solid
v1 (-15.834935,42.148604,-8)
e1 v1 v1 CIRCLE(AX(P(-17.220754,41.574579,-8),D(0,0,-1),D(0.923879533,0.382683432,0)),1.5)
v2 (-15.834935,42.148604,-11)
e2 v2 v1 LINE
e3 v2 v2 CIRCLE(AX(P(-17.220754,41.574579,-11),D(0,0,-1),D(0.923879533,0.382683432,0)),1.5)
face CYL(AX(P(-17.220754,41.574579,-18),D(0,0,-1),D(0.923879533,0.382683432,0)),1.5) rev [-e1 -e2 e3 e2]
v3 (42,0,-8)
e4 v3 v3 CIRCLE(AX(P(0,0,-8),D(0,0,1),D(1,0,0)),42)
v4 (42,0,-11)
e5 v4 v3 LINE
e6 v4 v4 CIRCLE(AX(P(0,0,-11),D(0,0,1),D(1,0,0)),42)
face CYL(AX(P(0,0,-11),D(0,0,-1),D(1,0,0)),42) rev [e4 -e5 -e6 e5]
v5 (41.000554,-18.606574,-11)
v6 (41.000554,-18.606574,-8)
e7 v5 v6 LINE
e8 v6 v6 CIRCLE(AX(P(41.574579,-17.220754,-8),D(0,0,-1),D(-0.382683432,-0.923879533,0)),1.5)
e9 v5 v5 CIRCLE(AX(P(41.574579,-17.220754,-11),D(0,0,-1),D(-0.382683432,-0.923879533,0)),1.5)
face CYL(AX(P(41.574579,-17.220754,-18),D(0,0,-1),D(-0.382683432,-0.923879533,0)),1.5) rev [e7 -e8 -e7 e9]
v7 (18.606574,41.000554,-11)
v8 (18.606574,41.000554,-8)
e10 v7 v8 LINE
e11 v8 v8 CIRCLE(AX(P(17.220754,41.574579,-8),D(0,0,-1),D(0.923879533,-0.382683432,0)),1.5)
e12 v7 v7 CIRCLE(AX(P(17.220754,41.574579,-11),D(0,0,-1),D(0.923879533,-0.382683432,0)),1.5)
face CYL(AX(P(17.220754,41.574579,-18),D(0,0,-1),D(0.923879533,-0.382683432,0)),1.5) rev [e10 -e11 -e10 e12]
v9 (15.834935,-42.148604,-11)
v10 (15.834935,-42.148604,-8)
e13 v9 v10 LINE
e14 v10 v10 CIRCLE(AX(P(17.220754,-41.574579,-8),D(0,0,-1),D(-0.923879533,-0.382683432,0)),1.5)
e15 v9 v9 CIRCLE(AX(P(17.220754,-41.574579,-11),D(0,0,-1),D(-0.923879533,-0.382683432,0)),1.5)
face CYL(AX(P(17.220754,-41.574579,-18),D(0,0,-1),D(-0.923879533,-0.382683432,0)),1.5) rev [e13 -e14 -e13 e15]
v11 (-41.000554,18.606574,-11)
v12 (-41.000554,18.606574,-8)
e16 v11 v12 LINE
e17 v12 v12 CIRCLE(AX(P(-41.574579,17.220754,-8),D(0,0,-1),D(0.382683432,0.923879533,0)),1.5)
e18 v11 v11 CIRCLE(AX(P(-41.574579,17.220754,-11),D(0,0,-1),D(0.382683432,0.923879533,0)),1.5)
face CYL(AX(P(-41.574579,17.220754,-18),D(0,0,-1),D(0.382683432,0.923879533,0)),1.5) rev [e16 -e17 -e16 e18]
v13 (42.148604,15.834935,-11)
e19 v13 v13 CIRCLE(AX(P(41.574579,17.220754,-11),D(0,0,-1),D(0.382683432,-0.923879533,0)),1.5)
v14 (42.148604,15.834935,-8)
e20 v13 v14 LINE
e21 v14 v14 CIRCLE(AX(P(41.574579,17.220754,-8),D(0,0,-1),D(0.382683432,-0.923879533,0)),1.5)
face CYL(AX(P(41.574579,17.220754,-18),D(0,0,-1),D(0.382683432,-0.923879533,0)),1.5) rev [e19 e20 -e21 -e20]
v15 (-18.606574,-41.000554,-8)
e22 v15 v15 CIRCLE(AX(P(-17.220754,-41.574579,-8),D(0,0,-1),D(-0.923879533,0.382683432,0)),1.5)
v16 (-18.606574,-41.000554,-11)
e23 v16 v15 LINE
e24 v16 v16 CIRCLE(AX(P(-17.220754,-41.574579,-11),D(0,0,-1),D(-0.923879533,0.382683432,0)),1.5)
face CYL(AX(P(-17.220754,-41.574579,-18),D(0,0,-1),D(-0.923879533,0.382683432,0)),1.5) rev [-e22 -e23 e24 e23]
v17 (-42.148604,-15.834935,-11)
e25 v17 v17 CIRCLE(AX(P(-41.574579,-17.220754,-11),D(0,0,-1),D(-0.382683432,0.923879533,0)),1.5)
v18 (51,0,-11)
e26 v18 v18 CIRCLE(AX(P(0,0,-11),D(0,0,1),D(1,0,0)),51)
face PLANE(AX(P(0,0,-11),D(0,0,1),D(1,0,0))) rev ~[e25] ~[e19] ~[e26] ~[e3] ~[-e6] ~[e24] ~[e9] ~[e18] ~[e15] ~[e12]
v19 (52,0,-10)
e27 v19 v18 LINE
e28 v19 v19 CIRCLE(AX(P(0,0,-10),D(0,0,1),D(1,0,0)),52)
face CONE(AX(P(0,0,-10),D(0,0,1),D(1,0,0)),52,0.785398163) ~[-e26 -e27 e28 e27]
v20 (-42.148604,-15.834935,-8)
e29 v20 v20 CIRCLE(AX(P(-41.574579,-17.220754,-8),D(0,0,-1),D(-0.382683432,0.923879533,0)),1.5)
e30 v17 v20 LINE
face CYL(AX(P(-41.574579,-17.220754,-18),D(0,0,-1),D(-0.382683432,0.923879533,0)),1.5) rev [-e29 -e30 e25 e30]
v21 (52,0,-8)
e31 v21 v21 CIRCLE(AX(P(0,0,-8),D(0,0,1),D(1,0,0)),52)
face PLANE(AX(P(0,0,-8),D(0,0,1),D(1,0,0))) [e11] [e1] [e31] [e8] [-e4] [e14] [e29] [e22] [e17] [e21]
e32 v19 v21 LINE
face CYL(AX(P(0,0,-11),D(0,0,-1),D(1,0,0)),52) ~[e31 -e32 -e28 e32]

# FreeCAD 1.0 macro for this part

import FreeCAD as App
import Part
import Sketcher


def edges_at(feature, points):
    """Names of the edges that pass closest to the given points."""
    edges = feature.Shape.Edges
    near = lambda p: min(range(len(edges)), key=lambda i: edges[i].distToShape(Part.Vertex(*p))[0])
    return sorted({f"Edge{near(p) + 1}" for p in points})

doc = App.newDocument("Part")
body = doc.addObject("PartDesign::Body", "Body")

# Sketch on XY plane
sketch1 = body.newObject("Sketcher::SketchObject", "Sketch")
sketch1.AttachmentSupport = (doc.getObject("XY_Plane"), [""])
sketch1.MapMode = "FlatFace"
sketch1.addGeometry(Part.Circle(App.Vector(0, 0, 0), App.Vector(0, 0, 1), 1.5), False)
sketch1.addConstraint([
    Sketcher.Constraint("Coincident", 0, 3, -1, 1),
    Sketcher.Constraint("Diameter", 0, 3.0),
])
pad1 = body.newObject("PartDesign::Pad", "Pad")
pad1.Profile = sketch1
pad1.Length = 20
body2 = doc.addObject("PartDesign::Body", "Body001")
doc.recompute()

body.Placement = App.Placement(App.Vector(-31.819805, 31.819805, -18), App.Rotation(App.Vector(0, 0, 1), 45))
boolean = body2.newObject("PartDesign::Boolean", "Boolean")
boolean.Type = "Fuse"
boolean.addObjects([body])
body3 = doc.addObject("PartDesign::Body", "Body002")

# Sketch on XY plane
sketch2 = body3.newObject("Sketcher::SketchObject", "Sketch001")
sketch2.AttachmentSupport = (doc.getObject("XY_Plane002"), [""])
sketch2.MapMode = "FlatFace"
sketch2.AttachmentOffset = App.Placement(App.Vector(0, 0, -18), App.Rotation())
sketch2.addGeometry(Part.Circle(App.Vector(-45, 0, 0), App.Vector(0, 0, 1), 1.5), False)
sketch2.addConstraint([
    Sketcher.Constraint("PointOnObject", 0, 3, -1),
    Sketcher.Constraint("Diameter", 0, 3.0),
    Sketcher.Constraint("DistanceX", 0, 3, -1, 1, 45.0),
])
pad2 = body3.newObject("PartDesign::Pad", "Pad001")
pad2.Profile = sketch2
pad2.Length = 20
body4 = doc.addObject("PartDesign::Body", "Body003")

# Sketch on XY plane
sketch3 = body4.newObject("Sketcher::SketchObject", "Sketch002")
sketch3.AttachmentSupport = (doc.getObject("XY_Plane003"), [""])
sketch3.MapMode = "FlatFace"
sketch3.addGeometry(Part.Circle(App.Vector(0, 0, 0), App.Vector(0, 0, 1), 1.5), False)
sketch3.addConstraint([
    Sketcher.Constraint("Coincident", 0, 3, -1, 1),
    Sketcher.Constraint("Diameter", 0, 3.0),
])
pad3 = body4.newObject("PartDesign::Pad", "Pad002")
pad3.Profile = sketch3
pad3.Length = 20
body5 = doc.addObject("PartDesign::Body", "Body004")
doc.recompute()

body4.Placement = App.Placement(App.Vector(-31.819805, -31.819805, -18), App.Rotation(App.Vector(0, 0, 1), 135))
boolean2 = body5.newObject("PartDesign::Boolean", "Boolean001")
boolean2.Type = "Fuse"
boolean2.addObjects([body4])
body6 = doc.addObject("PartDesign::Body", "Body005")

# Sketch on XY plane
sketch4 = body6.newObject("Sketcher::SketchObject", "Sketch003")
sketch4.AttachmentSupport = (doc.getObject("XY_Plane005"), [""])
sketch4.MapMode = "FlatFace"
sketch4.AttachmentOffset = App.Placement(App.Vector(0, 0, -18), App.Rotation())
sketch4.addGeometry(Part.Circle(App.Vector(0, -45, 0), App.Vector(0, 0, 1), 1.5), False)
sketch4.addConstraint([
    Sketcher.Constraint("PointOnObject", 0, 3, -2),
    Sketcher.Constraint("Diameter", 0, 3.0),
    Sketcher.Constraint("DistanceY", 0, 3, -1, 1, 45.0),
])
pad4 = body6.newObject("PartDesign::Pad", "Pad003")
pad4.Profile = sketch4
pad4.Length = 20
body7 = doc.addObject("PartDesign::Body", "Body006")

# Sketch on XY plane
sketch5 = body7.newObject("Sketcher::SketchObject", "Sketch004")
sketch5.AttachmentSupport = (doc.getObject("XY_Plane006"), [""])
sketch5.MapMode = "FlatFace"
sketch5.addGeometry(Part.Circle(App.Vector(0, 0, 0), App.Vector(0, 0, 1), 1.5), False)
sketch5.addConstraint([
    Sketcher.Constraint("Coincident", 0, 3, -1, 1),
    Sketcher.Constraint("Diameter", 0, 3.0),
])
pad5 = body7.newObject("PartDesign::Pad", "Pad004")
pad5.Profile = sketch5
pad5.Length = 20
body8 = doc.addObject("PartDesign::Body", "Body007")
doc.recompute()

body7.Placement = App.Placement(App.Vector(31.819805, -31.819805, -18), App.Rotation(App.Vector(0, 0, 1), 225))
boolean3 = body8.newObject("PartDesign::Boolean", "Boolean002")
boolean3.Type = "Fuse"
boolean3.addObjects([body7])
body9 = doc.addObject("PartDesign::Body", "Body008")

# Sketch on XY plane
sketch6 = body9.newObject("Sketcher::SketchObject", "Sketch005")
sketch6.AttachmentSupport = (doc.getObject("XY_Plane008"), [""])
sketch6.MapMode = "FlatFace"
sketch6.AttachmentOffset = App.Placement(App.Vector(0, 0, -18), App.Rotation())
sketch6.addGeometry(Part.Circle(App.Vector(45, 0, 0), App.Vector(0, 0, 1), 1.5), False)
sketch6.addConstraint([
    Sketcher.Constraint("PointOnObject", 0, 3, -1),
    Sketcher.Constraint("Diameter", 0, 3.0),
    Sketcher.Constraint("DistanceX", -1, 1, 0, 3, 45.0),
])
pad6 = body9.newObject("PartDesign::Pad", "Pad005")
pad6.Profile = sketch6
pad6.Length = 20
body10 = doc.addObject("PartDesign::Body", "Body009")

# Sketch on XY plane
sketch7 = body10.newObject("Sketcher::SketchObject", "Sketch006")
sketch7.AttachmentSupport = (doc.getObject("XY_Plane009"), [""])
sketch7.MapMode = "FlatFace"
sketch7.addGeometry(Part.Circle(App.Vector(0, 0, 0), App.Vector(0, 0, 1), 1.5), False)
sketch7.addConstraint([
    Sketcher.Constraint("Coincident", 0, 3, -1, 1),
    Sketcher.Constraint("Diameter", 0, 3.0),
])
pad7 = body10.newObject("PartDesign::Pad", "Pad006")
pad7.Profile = sketch7
pad7.Length = 20
body11 = doc.addObject("PartDesign::Body", "Body010")
doc.recompute()

body10.Placement = App.Placement(App.Vector(31.819805, 31.819805, -18), App.Rotation(App.Vector(0, 0, -1), 45))
boolean4 = body11.newObject("PartDesign::Boolean", "Boolean003")
boolean4.Type = "Fuse"
boolean4.addObjects([body10])
body12 = doc.addObject("PartDesign::Body", "Body011")
body12.AllowCompound = True

# Sketch on XY plane
sketch8 = body12.newObject("Sketcher::SketchObject", "Sketch007")
sketch8.AttachmentSupport = (doc.getObject("XY_Plane011"), [""])
sketch8.MapMode = "FlatFace"
sketch8.AttachmentOffset = App.Placement(App.Vector(0, 0, -18), App.Rotation())
sketch8.addGeometry(Part.Circle(App.Vector(0, 45, 0), App.Vector(0, 0, 1), 1.5), False)
sketch8.addConstraint([
    Sketcher.Constraint("PointOnObject", 0, 3, -2),
    Sketcher.Constraint("Diameter", 0, 3.0),
    Sketcher.Constraint("DistanceY", -1, 1, 0, 3, 45.0),
])
pad8 = body12.newObject("PartDesign::Pad", "Pad007")
pad8.Profile = sketch8
pad8.Length = 20
doc.recompute()

boolean5 = body12.newObject("PartDesign::Boolean", "Boolean004")
boolean5.Type = "Fuse"
boolean5.addObjects([body2])
doc.recompute()

boolean6 = body12.newObject("PartDesign::Boolean", "Boolean005")
boolean6.Type = "Fuse"
boolean6.addObjects([body3])
doc.recompute()

boolean7 = body12.newObject("PartDesign::Boolean", "Boolean006")
boolean7.Type = "Fuse"
boolean7.addObjects([body5])
doc.recompute()

boolean8 = body12.newObject("PartDesign::Boolean", "Boolean007")
boolean8.Type = "Fuse"
boolean8.addObjects([body6])
doc.recompute()

boolean9 = body12.newObject("PartDesign::Boolean", "Boolean008")
boolean9.Type = "Fuse"
boolean9.addObjects([body8])
doc.recompute()

boolean10 = body12.newObject("PartDesign::Boolean", "Boolean009")
boolean10.Type = "Fuse"
boolean10.addObjects([body9])
doc.recompute()

boolean11 = body12.newObject("PartDesign::Boolean", "Boolean010")
boolean11.Type = "Fuse"
boolean11.addObjects([body11])
body13 = doc.addObject("PartDesign::Body", "Body012")
body13.AllowCompound = True
doc.recompute()

body12.Placement = App.Placement(App.Vector(0, 0, 0), App.Rotation(App.Vector(0, 0, 1), 22.5))
boolean12 = body13.newObject("PartDesign::Boolean", "Boolean011")
boolean12.Type = "Fuse"
boolean12.addObjects([body12])
body14 = doc.addObject("PartDesign::Body", "Body013")

# Sketch on XY plane
sketch9 = body14.newObject("Sketcher::SketchObject", "Sketch008")
sketch9.AttachmentSupport = (doc.getObject("XY_Plane013"), [""])
sketch9.MapMode = "FlatFace"
sketch9.AttachmentOffset = App.Placement(App.Vector(0, 0, -11), App.Rotation())
sketch9.addGeometry([
    Part.Circle(App.Vector(0, 0, 0), App.Vector(0, 0, 1), 52),
    Part.Circle(App.Vector(0, 0, 0), App.Vector(0, 0, 1), 42),
], False)
sketch9.addConstraint([
    Sketcher.Constraint("Coincident", 0, 3, -1, 1),
    Sketcher.Constraint("Coincident", 1, 3, -1, 1),
    Sketcher.Constraint("Diameter", 0, 104.0),
    Sketcher.Constraint("Diameter", 1, 84.0),
])
pad9 = body14.newObject("PartDesign::Pad", "Pad008")
pad9.Profile = sketch9
pad9.Length = 3
doc.recompute()

boolean13 = body14.newObject("PartDesign::Boolean", "Boolean012")
boolean13.Type = "Cut"
boolean13.addObjects([body13])
body15 = doc.addObject("PartDesign::Body", "Body014")
doc.recompute()

body14.Placement = App.Placement(App.Vector(0, 0, -4), App.Rotation(App.Vector(0, 0, 1), 0))
boolean14 = body15.newObject("PartDesign::Boolean", "Boolean013")
boolean14.Type = "Fuse"
boolean14.addObjects([body14])
doc.recompute()

chamfer = body15.newObject("PartDesign::Chamfer", "Chamfer")
chamfer.Base = (boolean14, edges_at(boolean14, [(-52, 0, -15)]))
chamfer.Size = 1
body16 = doc.addObject("PartDesign::Body", "Body015")
doc.recompute()

body15.Placement = App.Placement(App.Vector(0, 0, 4), App.Rotation(App.Vector(0, 0, 1), 0))
boolean15 = body16.newObject("PartDesign::Boolean", "Boolean014")
boolean15.Type = "Fuse"
boolean15.addObjects([body15])

doc.recompute()
